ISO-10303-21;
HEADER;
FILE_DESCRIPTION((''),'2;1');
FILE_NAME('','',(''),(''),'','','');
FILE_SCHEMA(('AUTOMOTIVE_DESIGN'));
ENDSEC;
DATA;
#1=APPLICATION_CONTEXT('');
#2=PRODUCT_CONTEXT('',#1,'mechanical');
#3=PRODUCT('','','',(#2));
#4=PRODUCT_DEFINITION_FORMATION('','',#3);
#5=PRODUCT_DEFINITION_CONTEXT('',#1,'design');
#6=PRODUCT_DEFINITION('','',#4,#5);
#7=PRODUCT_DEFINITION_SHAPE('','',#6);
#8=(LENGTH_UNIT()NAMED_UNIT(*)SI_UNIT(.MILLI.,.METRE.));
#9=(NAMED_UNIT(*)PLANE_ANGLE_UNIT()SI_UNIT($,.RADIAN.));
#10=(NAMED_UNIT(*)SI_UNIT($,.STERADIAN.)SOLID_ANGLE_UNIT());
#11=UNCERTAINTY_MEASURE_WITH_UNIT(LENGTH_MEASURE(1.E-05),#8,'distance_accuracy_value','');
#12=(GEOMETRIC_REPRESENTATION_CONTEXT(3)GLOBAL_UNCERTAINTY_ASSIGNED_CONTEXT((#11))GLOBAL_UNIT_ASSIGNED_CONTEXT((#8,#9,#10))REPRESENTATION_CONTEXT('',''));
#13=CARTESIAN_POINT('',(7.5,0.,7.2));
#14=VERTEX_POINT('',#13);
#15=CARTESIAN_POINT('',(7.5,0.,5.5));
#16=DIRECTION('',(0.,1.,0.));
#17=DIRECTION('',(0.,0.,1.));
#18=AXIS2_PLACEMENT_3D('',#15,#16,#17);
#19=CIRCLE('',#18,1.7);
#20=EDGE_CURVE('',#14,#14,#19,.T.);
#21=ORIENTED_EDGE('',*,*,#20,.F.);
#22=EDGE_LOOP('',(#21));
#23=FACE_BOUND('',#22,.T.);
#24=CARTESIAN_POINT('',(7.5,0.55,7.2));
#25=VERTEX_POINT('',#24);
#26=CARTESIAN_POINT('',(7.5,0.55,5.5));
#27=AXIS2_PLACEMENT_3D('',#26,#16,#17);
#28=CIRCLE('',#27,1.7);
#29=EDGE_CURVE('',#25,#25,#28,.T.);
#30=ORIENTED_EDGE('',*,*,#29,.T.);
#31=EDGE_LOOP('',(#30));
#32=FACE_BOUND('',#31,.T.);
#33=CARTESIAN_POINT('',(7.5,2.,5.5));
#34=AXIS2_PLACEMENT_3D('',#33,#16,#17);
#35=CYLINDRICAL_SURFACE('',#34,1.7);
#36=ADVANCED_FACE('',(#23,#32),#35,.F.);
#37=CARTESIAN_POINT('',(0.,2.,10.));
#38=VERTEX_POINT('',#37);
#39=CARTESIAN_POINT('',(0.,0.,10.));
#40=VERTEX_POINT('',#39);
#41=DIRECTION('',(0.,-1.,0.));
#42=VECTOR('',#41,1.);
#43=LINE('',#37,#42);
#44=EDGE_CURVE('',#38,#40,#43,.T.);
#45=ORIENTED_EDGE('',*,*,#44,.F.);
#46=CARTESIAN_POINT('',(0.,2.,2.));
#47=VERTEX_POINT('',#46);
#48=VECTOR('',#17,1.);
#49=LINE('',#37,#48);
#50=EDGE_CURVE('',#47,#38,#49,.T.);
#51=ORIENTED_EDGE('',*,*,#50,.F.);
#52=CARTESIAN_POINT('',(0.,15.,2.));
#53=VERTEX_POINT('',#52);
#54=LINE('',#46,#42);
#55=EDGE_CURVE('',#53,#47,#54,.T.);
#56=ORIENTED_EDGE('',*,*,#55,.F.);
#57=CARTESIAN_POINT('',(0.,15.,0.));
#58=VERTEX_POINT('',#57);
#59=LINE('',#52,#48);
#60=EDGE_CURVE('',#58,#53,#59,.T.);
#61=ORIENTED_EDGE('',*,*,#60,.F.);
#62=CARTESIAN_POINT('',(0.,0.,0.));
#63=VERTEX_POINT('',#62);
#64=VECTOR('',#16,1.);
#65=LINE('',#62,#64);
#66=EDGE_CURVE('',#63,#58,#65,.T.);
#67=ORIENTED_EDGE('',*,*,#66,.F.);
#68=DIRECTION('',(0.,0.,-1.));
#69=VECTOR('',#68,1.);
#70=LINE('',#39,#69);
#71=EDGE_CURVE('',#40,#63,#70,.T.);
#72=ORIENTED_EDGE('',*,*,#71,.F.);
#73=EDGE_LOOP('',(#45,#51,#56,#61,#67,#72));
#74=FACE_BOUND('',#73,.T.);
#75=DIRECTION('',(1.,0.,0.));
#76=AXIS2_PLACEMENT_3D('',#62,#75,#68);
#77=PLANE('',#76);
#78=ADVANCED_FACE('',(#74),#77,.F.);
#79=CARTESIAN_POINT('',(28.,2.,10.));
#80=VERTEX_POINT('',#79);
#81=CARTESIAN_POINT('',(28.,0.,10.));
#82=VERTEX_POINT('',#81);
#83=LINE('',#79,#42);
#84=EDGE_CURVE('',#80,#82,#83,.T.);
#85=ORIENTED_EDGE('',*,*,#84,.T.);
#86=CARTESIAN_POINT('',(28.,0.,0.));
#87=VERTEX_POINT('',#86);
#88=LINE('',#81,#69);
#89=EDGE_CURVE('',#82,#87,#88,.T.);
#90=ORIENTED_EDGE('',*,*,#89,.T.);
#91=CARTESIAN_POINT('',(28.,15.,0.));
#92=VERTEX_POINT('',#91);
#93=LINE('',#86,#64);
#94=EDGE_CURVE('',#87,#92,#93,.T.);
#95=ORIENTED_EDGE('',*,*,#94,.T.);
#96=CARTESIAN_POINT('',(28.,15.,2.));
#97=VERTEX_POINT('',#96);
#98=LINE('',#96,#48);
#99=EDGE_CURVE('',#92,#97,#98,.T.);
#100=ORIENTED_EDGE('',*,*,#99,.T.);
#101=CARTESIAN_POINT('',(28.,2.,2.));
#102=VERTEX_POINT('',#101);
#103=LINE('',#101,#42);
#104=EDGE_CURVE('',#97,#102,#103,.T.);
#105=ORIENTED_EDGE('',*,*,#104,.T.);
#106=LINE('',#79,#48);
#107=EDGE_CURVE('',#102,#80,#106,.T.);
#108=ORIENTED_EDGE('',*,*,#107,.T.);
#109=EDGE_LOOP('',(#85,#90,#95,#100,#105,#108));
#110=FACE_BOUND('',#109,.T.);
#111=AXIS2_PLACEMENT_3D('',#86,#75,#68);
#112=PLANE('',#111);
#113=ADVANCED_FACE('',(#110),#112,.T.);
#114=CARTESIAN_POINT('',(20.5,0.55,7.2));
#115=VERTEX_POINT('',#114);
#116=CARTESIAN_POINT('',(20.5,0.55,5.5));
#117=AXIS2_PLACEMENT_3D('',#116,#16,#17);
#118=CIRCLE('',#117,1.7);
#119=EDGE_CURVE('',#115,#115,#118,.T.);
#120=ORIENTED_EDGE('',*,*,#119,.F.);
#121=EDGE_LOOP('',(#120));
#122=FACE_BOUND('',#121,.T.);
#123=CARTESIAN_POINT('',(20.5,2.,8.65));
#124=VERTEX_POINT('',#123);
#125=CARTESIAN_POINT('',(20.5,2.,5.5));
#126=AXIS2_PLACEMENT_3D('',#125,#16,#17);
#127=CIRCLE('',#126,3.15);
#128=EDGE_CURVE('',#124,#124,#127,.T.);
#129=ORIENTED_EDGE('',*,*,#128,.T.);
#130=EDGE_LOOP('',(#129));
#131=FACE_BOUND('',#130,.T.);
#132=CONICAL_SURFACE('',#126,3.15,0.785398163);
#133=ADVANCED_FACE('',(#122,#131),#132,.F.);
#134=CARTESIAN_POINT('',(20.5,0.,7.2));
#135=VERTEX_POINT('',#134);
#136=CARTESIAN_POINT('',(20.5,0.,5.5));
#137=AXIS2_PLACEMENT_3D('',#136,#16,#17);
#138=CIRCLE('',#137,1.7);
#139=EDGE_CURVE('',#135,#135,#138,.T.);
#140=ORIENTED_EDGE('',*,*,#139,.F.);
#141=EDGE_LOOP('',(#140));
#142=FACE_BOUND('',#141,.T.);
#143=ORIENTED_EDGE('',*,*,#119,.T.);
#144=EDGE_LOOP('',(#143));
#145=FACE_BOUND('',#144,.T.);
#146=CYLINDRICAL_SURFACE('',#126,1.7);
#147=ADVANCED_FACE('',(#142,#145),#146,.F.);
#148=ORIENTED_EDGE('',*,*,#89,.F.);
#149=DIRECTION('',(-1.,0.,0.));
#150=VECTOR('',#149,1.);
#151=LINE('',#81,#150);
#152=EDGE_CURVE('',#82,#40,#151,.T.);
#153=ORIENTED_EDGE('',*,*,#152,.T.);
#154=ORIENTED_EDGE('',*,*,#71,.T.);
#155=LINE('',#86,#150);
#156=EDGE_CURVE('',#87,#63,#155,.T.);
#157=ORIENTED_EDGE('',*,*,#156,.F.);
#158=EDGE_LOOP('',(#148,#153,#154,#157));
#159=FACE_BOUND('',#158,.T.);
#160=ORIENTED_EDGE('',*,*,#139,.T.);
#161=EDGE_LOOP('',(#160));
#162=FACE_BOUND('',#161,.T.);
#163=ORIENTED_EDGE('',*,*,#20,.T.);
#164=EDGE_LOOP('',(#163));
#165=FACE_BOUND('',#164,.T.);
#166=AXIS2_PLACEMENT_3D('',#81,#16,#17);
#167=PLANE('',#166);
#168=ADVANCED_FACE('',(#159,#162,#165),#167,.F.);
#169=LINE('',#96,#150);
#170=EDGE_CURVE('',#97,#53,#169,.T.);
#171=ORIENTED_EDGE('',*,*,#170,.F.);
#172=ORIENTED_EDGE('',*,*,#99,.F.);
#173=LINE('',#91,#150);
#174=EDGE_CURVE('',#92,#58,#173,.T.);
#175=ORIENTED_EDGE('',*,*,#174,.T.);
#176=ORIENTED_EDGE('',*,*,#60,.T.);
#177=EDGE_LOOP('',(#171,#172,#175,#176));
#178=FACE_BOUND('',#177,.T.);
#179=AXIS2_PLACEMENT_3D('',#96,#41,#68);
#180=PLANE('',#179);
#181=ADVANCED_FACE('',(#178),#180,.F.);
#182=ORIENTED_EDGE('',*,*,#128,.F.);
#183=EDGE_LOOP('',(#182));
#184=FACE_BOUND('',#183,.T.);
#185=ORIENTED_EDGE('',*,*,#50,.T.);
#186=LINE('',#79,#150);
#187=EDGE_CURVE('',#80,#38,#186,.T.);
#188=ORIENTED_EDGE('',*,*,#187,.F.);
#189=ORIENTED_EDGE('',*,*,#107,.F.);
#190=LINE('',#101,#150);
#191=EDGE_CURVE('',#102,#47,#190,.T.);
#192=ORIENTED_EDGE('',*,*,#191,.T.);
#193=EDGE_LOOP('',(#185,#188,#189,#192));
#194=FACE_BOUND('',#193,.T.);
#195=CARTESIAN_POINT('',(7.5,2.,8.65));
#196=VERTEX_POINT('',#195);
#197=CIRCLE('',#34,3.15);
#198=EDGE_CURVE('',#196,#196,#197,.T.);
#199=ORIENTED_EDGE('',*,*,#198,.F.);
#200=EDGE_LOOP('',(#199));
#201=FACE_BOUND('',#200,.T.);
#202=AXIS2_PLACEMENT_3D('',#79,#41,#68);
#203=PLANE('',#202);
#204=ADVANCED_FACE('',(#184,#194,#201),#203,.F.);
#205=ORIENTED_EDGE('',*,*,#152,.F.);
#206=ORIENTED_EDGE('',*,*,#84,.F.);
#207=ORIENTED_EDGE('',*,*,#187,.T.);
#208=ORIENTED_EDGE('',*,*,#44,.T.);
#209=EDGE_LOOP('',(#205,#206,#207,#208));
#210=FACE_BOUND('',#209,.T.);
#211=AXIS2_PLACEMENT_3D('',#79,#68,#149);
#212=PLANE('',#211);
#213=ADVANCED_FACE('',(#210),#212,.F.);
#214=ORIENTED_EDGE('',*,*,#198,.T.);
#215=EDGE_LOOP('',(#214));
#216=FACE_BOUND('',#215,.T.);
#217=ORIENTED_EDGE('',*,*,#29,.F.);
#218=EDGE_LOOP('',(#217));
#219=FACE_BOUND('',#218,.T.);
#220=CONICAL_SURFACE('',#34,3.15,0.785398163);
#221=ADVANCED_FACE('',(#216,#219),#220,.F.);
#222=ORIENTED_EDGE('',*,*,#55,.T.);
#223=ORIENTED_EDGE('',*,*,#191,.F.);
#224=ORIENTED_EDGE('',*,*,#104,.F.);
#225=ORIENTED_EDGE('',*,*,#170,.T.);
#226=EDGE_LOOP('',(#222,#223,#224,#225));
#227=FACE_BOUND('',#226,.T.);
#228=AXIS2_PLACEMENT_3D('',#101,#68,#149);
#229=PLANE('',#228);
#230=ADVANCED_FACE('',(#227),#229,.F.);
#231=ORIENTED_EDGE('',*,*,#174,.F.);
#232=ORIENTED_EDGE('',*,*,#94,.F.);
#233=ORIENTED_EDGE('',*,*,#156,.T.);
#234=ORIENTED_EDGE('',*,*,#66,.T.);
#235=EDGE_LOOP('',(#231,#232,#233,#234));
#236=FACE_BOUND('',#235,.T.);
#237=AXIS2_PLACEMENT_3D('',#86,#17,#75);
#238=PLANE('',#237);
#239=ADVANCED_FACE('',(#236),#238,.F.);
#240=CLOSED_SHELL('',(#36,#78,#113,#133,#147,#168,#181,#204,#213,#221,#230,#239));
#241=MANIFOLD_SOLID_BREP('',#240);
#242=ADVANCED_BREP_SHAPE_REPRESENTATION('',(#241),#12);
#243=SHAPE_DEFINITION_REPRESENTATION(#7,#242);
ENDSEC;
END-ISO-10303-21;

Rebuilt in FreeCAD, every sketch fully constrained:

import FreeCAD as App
import Part
import Sketcher
Q = App.Units.Quantity

doc = App.newDocument("Part")
body = doc.addObject("PartDesign::Body", "Body")

# Sketch on YZ plane
sketch1 = doc.addObject("Sketcher::SketchObject", "Sketch")
body.addObject(sketch1)
sketch1.AttachmentSupport = (doc.YZ_Plane, [""])
sketch1.MapMode = "FlatFace"
sketch1.addGeometry(Part.LineSegment(App.Vector(0, 10, 0), App.Vector(0, 0, 0)), False)
sketch1.addGeometry(Part.LineSegment(App.Vector(0, 0, 0), App.Vector(15, 0, 0)), False)
sketch1.addGeometry(Part.LineSegment(App.Vector(15, 0, 0), App.Vector(15, 2, 0)), False)
sketch1.addGeometry(Part.LineSegment(App.Vector(15, 2, 0), App.Vector(2, 2, 0)), False)
sketch1.addGeometry(Part.LineSegment(App.Vector(2, 2, 0), App.Vector(2, 10, 0)), False)
sketch1.addGeometry(Part.LineSegment(App.Vector(2, 10, 0), App.Vector(0, 10, 0)), False)
sketch1.addConstraint(Sketcher.Constraint("Coincident", 0, 2, 1, 1))
sketch1.addConstraint(Sketcher.Constraint("Coincident", 1, 2, 2, 1))
sketch1.addConstraint(Sketcher.Constraint("Coincident", 2, 2, 3, 1))
sketch1.addConstraint(Sketcher.Constraint("Coincident", 3, 2, 4, 1))
sketch1.addConstraint(Sketcher.Constraint("Coincident", 4, 2, 5, 1))
sketch1.addConstraint(Sketcher.Constraint("Coincident", 5, 2, 0, 1))
sketch1.addConstraint(Sketcher.Constraint("Vertical", 0))
sketch1.addConstraint(Sketcher.Constraint("Horizontal", 1))
sketch1.addConstraint(Sketcher.Constraint("Vertical", 2))
sketch1.addConstraint(Sketcher.Constraint("Horizontal", 3))
sketch1.addConstraint(Sketcher.Constraint("Vertical", 4))
sketch1.addConstraint(Sketcher.Constraint("Horizontal", 5))
sketch1.addConstraint(Sketcher.Constraint("Coincident", 0, 2, -1, 1))
sketch1.addConstraint(Sketcher.Constraint("Equal", 5, 2))
sketch1.addConstraint(Sketcher.Constraint("DistanceX", 1, 1, 1, 2, Q("15 mm")))
sketch1.addConstraint(Sketcher.Constraint("DistanceX", 3, 2, 3, 1, Q("13 mm")))
sketch1.addConstraint(Sketcher.Constraint("DistanceY", 0, 2, 0, 1, Q("10 mm")))
pad1 = doc.addObject("PartDesign::Pad", "Pad")
body.addObject(pad1)
pad1.Profile = sketch1
pad1.Length = 28

# Sketch on YZ plane
sketch2 = doc.addObject("Sketcher::SketchObject", "Sketch001")
body.addObject(sketch2)
sketch2.AttachmentSupport = (doc.YZ_Plane, [""])
sketch2.MapMode = "FlatFace"
sketch2.AttachmentOffset = App.Placement(App.Vector(0, 0, 7.5), App.Rotation())
sketch2.addGeometry(Part.LineSegment(App.Vector(0, 5.5, 0), App.Vector(2, 5.5, 0)), False)
sketch2.addGeometry(Part.LineSegment(App.Vector(2, 5.5, 0), App.Vector(2, 8.65, 0)), False)
sketch2.addGeometry(Part.LineSegment(App.Vector(2, 8.65, 0), App.Vector(0.55, 7.2, 0)), False)
sketch2.addGeometry(Part.LineSegment(App.Vector(0.55, 7.2, 0), App.Vector(0, 7.2, 0)), False)
sketch2.addGeometry(Part.LineSegment(App.Vector(0, 7.2, 0), App.Vector(0, 5.5, 0)), False)
sketch2.addGeometry(Part.LineSegment(App.Vector(2, 5.5, 0), App.Vector(0, 5.5, 0)), True)  # axis
sketch2.addConstraint(Sketcher.Constraint("Coincident", 0, 2, 1, 1))
sketch2.addConstraint(Sketcher.Constraint("Coincident", 1, 2, 2, 1))
sketch2.addConstraint(Sketcher.Constraint("Coincident", 2, 2, 3, 1))
sketch2.addConstraint(Sketcher.Constraint("Coincident", 3, 2, 4, 1))
sketch2.addConstraint(Sketcher.Constraint("Coincident", 4, 2, 0, 1))
sketch2.addConstraint(Sketcher.Constraint("Horizontal", 0))
sketch2.addConstraint(Sketcher.Constraint("Vertical", 1))
sketch2.addConstraint(Sketcher.Constraint("Horizontal", 3))
sketch2.addConstraint(Sketcher.Constraint("Vertical", 4))
sketch2.addConstraint(Sketcher.Constraint("Horizontal", 5))
sketch2.addConstraint(Sketcher.Constraint("Coincident", 5, 1, 0, 2))
sketch2.addConstraint(Sketcher.Constraint("PointOnObject", 3, 2, -2))
sketch2.addConstraint(Sketcher.Constraint("PointOnObject", 5, 2, -2))
sketch2.addConstraint(Sketcher.Constraint("DistanceX", 0, 1, 0, 2, Q("2 mm")))
sketch2.addConstraint(Sketcher.Constraint("Angle", 2, Q("-135 deg")))
sketch2.addConstraint(Sketcher.Constraint("DistanceY", 4, 2, 4, 1, Q("1.7 mm")))
sketch2.addConstraint(Sketcher.Constraint("DistanceX", 3, 2, 3, 1, Q("0.55 mm")))
sketch2.addConstraint(Sketcher.Constraint("DistanceY", -1, 1, 0, 2, Q("5.5 mm")))
groove = doc.addObject("PartDesign::Groove", "Groove")
body.addObject(groove)
groove.Profile = sketch2
groove.ReferenceAxis = (sketch2, ["Axis0"])
groove.Angle = 360
doc.recompute()

linearpattern = doc.addObject("PartDesign::LinearPattern", "LinearPattern")
body.addObject(linearpattern)
linearpattern.Originals = [groove]
linearpattern.Direction = (doc.X_Axis, [""])
linearpattern.Mode = "offset"
linearpattern.Offset = 13
linearpattern.Occurrences = 2
body.Tip = linearpattern

doc.recompute()
